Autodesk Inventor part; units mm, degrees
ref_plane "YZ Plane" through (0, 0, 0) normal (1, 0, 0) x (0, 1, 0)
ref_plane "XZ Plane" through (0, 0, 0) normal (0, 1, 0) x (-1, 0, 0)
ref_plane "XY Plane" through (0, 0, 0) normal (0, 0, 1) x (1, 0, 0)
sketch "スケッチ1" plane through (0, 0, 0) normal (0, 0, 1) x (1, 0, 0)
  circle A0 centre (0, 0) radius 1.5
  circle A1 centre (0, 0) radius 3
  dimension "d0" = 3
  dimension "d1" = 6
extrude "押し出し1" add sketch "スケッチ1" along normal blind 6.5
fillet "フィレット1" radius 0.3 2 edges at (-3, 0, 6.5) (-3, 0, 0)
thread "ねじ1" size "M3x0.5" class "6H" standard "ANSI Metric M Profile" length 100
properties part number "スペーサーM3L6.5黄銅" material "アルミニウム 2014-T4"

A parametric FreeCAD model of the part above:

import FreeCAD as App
import Part
import Sketcher

V = App.Vector
Q = App.Units.Quantity


def edges_at(feature, points):
    """Names of the edges that pass closest to the given points."""
    edges = feature.Shape.Edges
    near = lambda p: min(range(len(edges)), key=lambda i: edges[i].distToShape(Part.Vertex(*p))[0])
    return sorted({f"Edge{near(p) + 1}" for p in points})

doc = App.newDocument("Part")
body = doc.addObject("PartDesign::Body", "Body")

sketch1 = body.newObject("Sketcher::SketchObject", "Sketch")
sketch1.AttachmentSupport = (doc.getObject("XY_Plane"), [""])
sketch1.MapMode = "FlatFace"
sketch1.addGeometry([
    Part.Circle(V(0, 0, 0), V(0, 0, 1), 3),
    Part.Circle(V(0, 0, 0), V(0, 0, 1), 1.5),
], False)
sketch1.addConstraint([
    Sketcher.Constraint("Coincident", 0, 3, -1, 1),
    Sketcher.Constraint("Coincident", 1, 3, -1, 1),
    Sketcher.Constraint("Diameter", 0, Q("6 mm")),
    Sketcher.Constraint("Diameter", 1, Q("3 mm")),
])
pad1 = body.newObject("PartDesign::Pad", "Pad")
pad1.Profile = sketch1
pad1.Length = 6.5
doc.recompute()

fillet = body.newObject("PartDesign::Fillet", "Fillet")
fillet.Base = (pad1, edges_at(pad1, [(-3, 0, 6.5), (-3, 0, 0)]))
fillet.Radius = 0.3

doc.recompute()
